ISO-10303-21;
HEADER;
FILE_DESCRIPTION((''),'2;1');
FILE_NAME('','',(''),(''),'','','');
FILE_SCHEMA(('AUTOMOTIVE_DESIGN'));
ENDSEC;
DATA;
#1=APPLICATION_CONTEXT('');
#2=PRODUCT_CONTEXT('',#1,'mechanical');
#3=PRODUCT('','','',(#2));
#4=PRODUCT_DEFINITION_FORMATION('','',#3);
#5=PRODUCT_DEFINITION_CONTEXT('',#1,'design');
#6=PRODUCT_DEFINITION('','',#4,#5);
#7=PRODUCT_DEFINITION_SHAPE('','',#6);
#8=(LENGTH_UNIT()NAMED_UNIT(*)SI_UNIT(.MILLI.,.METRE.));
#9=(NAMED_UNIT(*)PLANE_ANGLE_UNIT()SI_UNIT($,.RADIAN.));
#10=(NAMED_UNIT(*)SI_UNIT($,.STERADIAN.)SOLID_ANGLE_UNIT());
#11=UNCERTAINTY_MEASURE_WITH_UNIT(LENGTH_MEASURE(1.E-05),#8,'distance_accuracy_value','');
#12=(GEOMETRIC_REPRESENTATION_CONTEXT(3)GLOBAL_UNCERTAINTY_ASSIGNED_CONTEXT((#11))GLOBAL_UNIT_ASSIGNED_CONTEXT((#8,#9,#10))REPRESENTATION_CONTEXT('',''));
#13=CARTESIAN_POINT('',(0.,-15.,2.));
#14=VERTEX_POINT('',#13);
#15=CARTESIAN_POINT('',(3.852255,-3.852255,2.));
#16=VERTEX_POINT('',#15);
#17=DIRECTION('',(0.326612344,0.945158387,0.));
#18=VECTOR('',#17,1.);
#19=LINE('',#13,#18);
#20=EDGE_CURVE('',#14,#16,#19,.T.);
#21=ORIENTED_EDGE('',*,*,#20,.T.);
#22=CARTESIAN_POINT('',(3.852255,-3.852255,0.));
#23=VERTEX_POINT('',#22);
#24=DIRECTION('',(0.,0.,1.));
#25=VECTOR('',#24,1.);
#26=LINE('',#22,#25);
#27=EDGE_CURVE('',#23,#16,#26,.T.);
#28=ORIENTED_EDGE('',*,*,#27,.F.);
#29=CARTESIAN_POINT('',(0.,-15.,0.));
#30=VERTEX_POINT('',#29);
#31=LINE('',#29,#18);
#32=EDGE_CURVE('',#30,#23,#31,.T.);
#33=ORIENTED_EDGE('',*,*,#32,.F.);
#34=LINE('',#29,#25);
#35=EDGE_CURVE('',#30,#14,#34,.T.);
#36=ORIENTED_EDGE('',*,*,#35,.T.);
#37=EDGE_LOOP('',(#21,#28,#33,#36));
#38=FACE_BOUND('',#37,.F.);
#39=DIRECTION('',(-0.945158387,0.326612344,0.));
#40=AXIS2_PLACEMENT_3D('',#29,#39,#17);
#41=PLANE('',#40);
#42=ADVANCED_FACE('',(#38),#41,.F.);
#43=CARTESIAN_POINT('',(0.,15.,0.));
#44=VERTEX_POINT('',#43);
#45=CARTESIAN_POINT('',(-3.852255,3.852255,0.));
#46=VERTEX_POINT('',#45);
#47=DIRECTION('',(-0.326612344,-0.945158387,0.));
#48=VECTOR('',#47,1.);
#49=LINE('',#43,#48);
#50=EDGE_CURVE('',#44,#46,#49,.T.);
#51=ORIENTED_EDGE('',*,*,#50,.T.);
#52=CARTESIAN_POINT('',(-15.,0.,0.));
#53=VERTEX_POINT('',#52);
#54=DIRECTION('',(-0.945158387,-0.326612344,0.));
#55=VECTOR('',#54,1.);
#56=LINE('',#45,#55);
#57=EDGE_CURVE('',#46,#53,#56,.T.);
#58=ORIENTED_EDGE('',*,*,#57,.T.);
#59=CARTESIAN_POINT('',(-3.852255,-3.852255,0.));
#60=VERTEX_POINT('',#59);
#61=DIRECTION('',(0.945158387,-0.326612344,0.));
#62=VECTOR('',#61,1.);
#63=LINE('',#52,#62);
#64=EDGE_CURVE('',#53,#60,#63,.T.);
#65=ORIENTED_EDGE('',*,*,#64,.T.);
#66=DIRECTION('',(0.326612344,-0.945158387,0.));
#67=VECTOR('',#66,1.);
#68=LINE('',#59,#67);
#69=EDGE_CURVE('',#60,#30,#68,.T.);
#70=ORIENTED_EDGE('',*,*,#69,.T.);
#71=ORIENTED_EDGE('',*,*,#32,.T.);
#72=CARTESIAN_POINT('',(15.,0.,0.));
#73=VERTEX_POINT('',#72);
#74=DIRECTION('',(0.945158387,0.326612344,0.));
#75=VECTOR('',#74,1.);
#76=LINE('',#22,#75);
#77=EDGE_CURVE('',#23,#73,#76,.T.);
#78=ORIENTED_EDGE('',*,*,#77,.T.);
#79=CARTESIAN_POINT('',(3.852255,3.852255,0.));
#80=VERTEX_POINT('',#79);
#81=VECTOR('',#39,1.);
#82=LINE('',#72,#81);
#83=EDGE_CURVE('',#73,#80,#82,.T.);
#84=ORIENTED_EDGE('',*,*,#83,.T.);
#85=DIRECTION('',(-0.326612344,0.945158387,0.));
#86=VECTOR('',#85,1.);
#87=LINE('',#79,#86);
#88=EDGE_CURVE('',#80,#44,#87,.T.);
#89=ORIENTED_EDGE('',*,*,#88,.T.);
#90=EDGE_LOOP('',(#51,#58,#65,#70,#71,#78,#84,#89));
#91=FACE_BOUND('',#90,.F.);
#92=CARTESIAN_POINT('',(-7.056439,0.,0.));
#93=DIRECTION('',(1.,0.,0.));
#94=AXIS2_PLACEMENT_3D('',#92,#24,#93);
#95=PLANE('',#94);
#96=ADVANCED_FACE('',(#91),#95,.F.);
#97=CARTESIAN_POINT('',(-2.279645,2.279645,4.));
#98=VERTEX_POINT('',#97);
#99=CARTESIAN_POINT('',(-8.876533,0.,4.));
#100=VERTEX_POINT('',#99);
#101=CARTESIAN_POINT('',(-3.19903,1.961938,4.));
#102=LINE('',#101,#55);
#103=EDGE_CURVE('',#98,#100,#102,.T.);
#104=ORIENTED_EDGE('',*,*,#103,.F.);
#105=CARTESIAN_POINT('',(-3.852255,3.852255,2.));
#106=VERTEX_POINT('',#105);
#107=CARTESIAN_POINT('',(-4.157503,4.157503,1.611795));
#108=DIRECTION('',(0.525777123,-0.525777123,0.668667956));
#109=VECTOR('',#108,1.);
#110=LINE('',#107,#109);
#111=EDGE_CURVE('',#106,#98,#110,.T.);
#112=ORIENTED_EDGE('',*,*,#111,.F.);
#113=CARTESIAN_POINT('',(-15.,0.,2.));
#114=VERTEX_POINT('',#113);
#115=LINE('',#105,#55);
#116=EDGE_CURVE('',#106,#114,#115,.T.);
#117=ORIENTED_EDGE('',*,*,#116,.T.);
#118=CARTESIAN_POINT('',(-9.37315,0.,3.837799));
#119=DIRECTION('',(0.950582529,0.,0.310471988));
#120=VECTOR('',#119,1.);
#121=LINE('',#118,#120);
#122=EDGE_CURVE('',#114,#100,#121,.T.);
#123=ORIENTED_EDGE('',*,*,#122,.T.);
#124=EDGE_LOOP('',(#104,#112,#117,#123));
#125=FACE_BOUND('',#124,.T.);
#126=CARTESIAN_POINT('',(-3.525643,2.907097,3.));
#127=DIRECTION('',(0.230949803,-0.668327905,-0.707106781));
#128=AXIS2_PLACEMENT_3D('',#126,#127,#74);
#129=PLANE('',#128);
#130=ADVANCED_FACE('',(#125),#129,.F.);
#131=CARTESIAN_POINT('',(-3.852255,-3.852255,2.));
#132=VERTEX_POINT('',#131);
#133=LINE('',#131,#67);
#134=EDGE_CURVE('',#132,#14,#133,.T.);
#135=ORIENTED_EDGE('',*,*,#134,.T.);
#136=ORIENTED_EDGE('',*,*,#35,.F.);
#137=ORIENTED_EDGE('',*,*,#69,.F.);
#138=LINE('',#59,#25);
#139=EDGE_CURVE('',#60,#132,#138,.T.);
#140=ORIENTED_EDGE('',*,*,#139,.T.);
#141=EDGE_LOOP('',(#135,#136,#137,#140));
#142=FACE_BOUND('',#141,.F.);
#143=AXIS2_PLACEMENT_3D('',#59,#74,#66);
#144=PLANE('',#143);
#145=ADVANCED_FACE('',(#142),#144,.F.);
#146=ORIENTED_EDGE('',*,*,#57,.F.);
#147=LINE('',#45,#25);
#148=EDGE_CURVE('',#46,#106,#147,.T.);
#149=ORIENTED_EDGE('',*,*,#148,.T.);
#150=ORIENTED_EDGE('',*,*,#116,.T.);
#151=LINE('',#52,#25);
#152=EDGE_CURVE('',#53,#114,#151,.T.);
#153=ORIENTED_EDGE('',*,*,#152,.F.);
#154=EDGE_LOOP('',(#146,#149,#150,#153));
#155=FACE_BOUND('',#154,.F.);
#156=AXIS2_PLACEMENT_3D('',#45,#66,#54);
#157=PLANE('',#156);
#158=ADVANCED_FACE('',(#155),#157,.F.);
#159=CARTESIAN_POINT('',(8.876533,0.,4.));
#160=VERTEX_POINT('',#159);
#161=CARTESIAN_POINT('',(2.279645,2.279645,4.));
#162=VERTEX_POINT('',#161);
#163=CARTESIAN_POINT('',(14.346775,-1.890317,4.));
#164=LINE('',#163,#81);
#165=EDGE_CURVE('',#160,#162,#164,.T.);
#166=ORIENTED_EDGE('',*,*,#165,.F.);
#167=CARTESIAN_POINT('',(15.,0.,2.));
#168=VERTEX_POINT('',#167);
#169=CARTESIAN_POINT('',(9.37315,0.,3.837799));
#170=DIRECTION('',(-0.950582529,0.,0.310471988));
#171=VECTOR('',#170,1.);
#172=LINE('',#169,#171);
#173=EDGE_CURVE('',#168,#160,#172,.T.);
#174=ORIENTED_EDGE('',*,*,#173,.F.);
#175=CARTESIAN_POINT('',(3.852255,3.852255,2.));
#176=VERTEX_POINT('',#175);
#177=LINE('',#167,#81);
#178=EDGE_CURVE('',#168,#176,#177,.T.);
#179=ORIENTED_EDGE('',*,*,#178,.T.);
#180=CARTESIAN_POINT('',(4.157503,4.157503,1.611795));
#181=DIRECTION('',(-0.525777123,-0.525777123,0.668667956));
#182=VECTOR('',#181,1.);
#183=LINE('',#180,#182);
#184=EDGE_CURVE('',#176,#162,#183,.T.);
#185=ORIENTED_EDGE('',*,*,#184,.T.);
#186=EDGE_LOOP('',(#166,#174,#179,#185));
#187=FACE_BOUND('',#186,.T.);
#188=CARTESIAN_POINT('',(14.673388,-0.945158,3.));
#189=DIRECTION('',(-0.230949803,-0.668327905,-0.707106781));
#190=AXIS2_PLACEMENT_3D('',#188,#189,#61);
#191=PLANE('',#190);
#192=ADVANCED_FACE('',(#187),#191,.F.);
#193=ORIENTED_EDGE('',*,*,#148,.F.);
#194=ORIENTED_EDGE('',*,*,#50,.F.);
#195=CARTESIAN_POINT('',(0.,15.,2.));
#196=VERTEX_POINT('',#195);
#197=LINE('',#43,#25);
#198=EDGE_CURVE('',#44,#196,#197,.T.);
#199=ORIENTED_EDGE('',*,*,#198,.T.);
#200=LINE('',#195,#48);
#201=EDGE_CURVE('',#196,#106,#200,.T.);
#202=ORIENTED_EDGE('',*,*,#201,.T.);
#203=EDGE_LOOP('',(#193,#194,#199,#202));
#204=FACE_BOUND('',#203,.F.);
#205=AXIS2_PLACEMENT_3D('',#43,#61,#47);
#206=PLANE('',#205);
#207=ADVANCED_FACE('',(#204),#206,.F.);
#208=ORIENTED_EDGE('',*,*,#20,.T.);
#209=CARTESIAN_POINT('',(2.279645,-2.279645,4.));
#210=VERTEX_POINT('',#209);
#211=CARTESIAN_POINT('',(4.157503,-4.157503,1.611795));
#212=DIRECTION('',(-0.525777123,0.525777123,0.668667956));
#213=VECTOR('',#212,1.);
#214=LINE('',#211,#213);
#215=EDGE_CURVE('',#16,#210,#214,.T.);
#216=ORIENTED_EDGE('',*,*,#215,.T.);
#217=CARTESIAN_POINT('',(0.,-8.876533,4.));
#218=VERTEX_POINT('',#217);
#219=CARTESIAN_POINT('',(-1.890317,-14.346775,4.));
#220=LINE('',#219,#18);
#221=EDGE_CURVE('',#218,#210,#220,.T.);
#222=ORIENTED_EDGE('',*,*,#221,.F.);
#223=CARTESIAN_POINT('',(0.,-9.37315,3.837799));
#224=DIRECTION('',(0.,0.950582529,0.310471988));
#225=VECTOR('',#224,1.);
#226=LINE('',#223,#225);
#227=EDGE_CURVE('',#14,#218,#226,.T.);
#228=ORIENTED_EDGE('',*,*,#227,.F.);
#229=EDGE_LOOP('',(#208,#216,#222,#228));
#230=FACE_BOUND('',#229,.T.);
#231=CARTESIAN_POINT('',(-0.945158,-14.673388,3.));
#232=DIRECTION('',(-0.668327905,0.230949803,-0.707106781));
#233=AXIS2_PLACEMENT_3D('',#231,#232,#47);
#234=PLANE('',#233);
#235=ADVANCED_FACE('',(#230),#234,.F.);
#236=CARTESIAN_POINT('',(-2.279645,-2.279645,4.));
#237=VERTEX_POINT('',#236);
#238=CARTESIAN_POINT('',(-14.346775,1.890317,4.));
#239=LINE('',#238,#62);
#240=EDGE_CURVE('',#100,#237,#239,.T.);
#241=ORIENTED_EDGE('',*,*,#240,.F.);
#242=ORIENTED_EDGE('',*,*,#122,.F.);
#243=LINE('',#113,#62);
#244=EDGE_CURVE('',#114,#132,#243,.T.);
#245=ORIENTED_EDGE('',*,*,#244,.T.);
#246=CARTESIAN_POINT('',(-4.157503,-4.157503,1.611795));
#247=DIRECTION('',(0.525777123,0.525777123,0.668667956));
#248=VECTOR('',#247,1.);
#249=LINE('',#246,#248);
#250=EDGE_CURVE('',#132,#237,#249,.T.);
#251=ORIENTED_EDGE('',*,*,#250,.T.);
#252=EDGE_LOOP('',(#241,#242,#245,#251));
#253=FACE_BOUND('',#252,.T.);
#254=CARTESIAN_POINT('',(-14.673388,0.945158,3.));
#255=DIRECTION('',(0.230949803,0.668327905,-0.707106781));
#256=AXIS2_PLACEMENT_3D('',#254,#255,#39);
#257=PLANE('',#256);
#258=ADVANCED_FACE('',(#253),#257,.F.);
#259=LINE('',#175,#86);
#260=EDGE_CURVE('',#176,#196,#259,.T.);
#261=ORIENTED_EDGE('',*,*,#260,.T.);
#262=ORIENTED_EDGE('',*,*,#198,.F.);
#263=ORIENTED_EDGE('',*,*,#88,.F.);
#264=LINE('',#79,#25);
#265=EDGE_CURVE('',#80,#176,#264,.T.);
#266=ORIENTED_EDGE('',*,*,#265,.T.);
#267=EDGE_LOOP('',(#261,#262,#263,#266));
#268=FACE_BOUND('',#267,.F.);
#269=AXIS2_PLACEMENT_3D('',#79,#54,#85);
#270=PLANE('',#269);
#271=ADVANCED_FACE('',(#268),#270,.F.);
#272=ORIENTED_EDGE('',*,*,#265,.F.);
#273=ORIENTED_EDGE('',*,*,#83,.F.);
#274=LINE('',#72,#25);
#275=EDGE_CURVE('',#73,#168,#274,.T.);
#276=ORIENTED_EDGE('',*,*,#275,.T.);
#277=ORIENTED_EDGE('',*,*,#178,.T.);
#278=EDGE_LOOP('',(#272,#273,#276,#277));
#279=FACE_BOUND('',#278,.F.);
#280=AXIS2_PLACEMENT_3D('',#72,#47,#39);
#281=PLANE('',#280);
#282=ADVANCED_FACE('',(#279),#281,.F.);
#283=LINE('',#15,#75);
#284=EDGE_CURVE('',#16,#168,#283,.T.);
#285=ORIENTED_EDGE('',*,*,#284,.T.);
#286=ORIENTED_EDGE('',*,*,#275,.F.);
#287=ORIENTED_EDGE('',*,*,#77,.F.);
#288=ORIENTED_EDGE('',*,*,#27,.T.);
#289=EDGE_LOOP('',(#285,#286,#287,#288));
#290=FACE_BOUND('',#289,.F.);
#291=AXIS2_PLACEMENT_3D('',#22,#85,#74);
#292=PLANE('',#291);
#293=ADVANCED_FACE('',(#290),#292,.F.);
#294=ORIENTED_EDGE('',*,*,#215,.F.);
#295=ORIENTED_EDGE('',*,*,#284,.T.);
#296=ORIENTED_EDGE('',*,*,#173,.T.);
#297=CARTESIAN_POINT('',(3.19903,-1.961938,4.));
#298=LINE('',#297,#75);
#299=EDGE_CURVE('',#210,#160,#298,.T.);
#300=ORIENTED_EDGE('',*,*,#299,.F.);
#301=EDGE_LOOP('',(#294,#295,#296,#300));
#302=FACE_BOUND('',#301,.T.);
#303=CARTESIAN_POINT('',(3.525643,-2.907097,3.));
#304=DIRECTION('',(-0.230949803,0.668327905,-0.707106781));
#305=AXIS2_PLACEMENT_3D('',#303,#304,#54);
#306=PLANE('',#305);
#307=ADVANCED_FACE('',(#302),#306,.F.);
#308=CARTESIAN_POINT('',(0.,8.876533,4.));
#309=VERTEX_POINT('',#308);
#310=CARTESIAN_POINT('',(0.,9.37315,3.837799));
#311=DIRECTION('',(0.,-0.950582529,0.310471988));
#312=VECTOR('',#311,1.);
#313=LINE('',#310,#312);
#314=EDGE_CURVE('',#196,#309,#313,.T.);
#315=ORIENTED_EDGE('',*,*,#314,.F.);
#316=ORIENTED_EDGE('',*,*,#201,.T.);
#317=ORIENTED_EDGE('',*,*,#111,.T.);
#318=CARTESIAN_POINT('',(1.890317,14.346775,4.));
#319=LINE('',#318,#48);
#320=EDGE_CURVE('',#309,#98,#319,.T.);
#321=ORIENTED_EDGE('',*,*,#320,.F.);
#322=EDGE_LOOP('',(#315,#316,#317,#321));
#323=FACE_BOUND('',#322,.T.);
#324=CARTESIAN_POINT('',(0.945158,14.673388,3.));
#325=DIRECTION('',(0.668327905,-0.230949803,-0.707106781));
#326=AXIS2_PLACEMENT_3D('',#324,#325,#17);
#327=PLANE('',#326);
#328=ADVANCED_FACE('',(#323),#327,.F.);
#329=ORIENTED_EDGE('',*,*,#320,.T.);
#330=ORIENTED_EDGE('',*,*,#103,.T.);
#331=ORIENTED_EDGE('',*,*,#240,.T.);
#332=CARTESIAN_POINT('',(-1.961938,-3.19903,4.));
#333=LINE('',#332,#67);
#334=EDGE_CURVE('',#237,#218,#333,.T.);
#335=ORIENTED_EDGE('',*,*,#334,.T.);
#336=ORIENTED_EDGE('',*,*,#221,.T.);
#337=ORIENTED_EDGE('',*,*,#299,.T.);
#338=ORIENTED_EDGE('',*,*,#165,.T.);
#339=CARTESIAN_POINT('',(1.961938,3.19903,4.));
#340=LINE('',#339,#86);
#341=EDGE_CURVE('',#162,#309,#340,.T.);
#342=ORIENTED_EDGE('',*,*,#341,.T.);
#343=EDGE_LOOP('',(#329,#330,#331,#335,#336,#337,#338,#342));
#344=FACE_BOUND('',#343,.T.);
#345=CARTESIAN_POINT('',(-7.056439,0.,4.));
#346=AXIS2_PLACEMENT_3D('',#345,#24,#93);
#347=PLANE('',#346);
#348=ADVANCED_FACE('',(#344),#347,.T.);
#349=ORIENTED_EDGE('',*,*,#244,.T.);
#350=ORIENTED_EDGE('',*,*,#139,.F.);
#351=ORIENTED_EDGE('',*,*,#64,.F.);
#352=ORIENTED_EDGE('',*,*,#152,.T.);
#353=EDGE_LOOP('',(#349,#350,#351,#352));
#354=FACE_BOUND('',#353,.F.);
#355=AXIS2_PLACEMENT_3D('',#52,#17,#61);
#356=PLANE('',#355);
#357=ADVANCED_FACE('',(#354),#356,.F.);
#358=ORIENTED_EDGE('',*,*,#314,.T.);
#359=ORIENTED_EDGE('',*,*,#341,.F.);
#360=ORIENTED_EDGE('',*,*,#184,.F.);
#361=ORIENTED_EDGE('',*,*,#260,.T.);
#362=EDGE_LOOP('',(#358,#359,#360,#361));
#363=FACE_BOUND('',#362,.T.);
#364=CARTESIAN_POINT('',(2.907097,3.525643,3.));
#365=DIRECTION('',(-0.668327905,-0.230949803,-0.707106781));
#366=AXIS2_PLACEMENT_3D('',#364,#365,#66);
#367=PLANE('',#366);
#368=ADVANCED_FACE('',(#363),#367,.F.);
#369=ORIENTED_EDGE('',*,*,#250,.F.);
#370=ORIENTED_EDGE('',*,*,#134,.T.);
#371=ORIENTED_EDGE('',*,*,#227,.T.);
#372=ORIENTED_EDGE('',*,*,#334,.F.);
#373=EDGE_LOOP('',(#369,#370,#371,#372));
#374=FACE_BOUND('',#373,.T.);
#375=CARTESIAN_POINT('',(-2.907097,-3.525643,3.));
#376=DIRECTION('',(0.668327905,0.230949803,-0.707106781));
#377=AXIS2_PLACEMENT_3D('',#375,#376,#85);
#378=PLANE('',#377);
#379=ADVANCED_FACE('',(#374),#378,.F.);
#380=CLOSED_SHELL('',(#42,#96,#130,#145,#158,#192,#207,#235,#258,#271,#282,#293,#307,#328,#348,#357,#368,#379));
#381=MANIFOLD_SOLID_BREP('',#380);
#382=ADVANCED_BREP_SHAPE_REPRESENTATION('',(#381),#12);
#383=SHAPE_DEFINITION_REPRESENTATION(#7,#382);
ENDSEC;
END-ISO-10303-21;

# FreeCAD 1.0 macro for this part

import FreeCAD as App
import Part
import Sketcher
from FreeCAD import Vector
Q = App.Units.Quantity


def edges_at(feature, points):
    """Names of the edges that pass closest to the given points."""
    edges = feature.Shape.Edges
    near = lambda p: min(range(len(edges)), key=lambda i: edges[i].distToShape(Part.Vertex(*p))[0])
    return sorted({f"Edge{near(p) + 1}" for p in points})

doc = App.newDocument("Part")
params = doc.addObject("Spreadsheet::Sheet", "Params")
for row, (alias, value) in enumerate([
    ("pad1_length", "4 mm"),
    ("chamfer_size", "2 mm"),
], start=1):
    params.set(f"A{row}", alias)
    params.set(f"B{row}", "=" + value)
    params.setAlias(f"B{row}", alias)

body = doc.addObject("PartDesign::Body", "Body")

# Sketch on XY plane
sketch1 = body.newObject("Sketcher::SketchObject", "Sketch")
sketch1.AttachmentSupport = (doc.getObject("XY_Plane"), [""])
sketch1.MapMode = "FlatFace"
sketch1.addGeometry(Part.LineSegment(Vector(-4, 4, 0), Vector(-15, 0, 0)), False)
sketch1.addGeometry(Part.LineSegment(Vector(-15, 0, 0), Vector(-4, -4, 0)), False)
sketch1.addGeometry(Part.LineSegment(Vector(-4, -4, 0), Vector(0, -15, 0)), False)
sketch1.addGeometry(Part.LineSegment(Vector(0, -15, 0), Vector(4, -4, 0)), False)
sketch1.addGeometry(Part.LineSegment(Vector(4, -4, 0), Vector(15, 0, 0)), False)
sketch1.addGeometry(Part.LineSegment(Vector(15, 0, 0), Vector(4, 4, 0)), False)
sketch1.addGeometry(Part.LineSegment(Vector(4, 4, 0), Vector(0, 15, 0)), False)
sketch1.addGeometry(Part.LineSegment(Vector(0, 15, 0), Vector(-4, 4, 0)), False)
sketch1.addConstraint(Sketcher.Constraint("Coincident", 0, 2, 1, 1))
sketch1.addConstraint(Sketcher.Constraint("Coincident", 1, 2, 2, 1))
sketch1.addConstraint(Sketcher.Constraint("Coincident", 2, 2, 3, 1))
sketch1.addConstraint(Sketcher.Constraint("Coincident", 3, 2, 4, 1))
sketch1.addConstraint(Sketcher.Constraint("Coincident", 4, 2, 5, 1))
sketch1.addConstraint(Sketcher.Constraint("Coincident", 5, 2, 6, 1))
sketch1.addConstraint(Sketcher.Constraint("Coincident", 6, 2, 7, 1))
sketch1.addConstraint(Sketcher.Constraint("Coincident", 7, 2, 0, 1))
sketch1.addConstraint(Sketcher.Constraint("Symmetric", 0, 2, 4, 2, -1, 1))
sketch1.addConstraint(Sketcher.Constraint("Symmetric", 1, 2, 5, 2, -1, 1))
sketch1.addConstraint(Sketcher.Constraint("Symmetric", 2, 2, 6, 2, -1, 1))
sketch1.addConstraint(Sketcher.Constraint("Symmetric", 3, 2, 7, 2, -1, 1))
sketch1.addConstraint(Sketcher.Constraint("Symmetric", 1, 2, 3, 2, -2))
sketch1.addConstraint(Sketcher.Constraint("PointOnObject", 0, 2, -1))
sketch1.addConstraint(Sketcher.Constraint("PointOnObject", 2, 2, -2))
sketch1.addConstraint(Sketcher.Constraint("Perpendicular", 0, 2))
sketch1.addConstraint(Sketcher.Constraint("Equal", 1, 2))
sketch1.addConstraint(Sketcher.Constraint("DistanceX", 0, 2, -1, 1, Q("15 mm")))
sketch1.addConstraint(Sketcher.Constraint("Distance", 0, Q("11.794579 mm")))
pad1 = body.newObject("PartDesign::Pad", "Pad")
pad1.Profile = sketch1
pad1.setExpression("Length", "Params.pad1_length")
doc.recompute()

chamfer = body.newObject("PartDesign::Chamfer", "Chamfer")
chamfer.Base = (pad1, edges_at(pad1, [
    (-9.426, -1.926, 4),
    (-1.926, -9.426, 4),
    (1.926, -9.426, 4),
    (9.426, -1.926, 4),
    (9.426, 1.926, 4),
    (1.926, 9.426, 4),
    (-1.926, 9.426, 4),
    (-9.426, 1.926, 4),
]))
chamfer.setExpression("Size", "Params.chamfer_size")

doc.recompute()
